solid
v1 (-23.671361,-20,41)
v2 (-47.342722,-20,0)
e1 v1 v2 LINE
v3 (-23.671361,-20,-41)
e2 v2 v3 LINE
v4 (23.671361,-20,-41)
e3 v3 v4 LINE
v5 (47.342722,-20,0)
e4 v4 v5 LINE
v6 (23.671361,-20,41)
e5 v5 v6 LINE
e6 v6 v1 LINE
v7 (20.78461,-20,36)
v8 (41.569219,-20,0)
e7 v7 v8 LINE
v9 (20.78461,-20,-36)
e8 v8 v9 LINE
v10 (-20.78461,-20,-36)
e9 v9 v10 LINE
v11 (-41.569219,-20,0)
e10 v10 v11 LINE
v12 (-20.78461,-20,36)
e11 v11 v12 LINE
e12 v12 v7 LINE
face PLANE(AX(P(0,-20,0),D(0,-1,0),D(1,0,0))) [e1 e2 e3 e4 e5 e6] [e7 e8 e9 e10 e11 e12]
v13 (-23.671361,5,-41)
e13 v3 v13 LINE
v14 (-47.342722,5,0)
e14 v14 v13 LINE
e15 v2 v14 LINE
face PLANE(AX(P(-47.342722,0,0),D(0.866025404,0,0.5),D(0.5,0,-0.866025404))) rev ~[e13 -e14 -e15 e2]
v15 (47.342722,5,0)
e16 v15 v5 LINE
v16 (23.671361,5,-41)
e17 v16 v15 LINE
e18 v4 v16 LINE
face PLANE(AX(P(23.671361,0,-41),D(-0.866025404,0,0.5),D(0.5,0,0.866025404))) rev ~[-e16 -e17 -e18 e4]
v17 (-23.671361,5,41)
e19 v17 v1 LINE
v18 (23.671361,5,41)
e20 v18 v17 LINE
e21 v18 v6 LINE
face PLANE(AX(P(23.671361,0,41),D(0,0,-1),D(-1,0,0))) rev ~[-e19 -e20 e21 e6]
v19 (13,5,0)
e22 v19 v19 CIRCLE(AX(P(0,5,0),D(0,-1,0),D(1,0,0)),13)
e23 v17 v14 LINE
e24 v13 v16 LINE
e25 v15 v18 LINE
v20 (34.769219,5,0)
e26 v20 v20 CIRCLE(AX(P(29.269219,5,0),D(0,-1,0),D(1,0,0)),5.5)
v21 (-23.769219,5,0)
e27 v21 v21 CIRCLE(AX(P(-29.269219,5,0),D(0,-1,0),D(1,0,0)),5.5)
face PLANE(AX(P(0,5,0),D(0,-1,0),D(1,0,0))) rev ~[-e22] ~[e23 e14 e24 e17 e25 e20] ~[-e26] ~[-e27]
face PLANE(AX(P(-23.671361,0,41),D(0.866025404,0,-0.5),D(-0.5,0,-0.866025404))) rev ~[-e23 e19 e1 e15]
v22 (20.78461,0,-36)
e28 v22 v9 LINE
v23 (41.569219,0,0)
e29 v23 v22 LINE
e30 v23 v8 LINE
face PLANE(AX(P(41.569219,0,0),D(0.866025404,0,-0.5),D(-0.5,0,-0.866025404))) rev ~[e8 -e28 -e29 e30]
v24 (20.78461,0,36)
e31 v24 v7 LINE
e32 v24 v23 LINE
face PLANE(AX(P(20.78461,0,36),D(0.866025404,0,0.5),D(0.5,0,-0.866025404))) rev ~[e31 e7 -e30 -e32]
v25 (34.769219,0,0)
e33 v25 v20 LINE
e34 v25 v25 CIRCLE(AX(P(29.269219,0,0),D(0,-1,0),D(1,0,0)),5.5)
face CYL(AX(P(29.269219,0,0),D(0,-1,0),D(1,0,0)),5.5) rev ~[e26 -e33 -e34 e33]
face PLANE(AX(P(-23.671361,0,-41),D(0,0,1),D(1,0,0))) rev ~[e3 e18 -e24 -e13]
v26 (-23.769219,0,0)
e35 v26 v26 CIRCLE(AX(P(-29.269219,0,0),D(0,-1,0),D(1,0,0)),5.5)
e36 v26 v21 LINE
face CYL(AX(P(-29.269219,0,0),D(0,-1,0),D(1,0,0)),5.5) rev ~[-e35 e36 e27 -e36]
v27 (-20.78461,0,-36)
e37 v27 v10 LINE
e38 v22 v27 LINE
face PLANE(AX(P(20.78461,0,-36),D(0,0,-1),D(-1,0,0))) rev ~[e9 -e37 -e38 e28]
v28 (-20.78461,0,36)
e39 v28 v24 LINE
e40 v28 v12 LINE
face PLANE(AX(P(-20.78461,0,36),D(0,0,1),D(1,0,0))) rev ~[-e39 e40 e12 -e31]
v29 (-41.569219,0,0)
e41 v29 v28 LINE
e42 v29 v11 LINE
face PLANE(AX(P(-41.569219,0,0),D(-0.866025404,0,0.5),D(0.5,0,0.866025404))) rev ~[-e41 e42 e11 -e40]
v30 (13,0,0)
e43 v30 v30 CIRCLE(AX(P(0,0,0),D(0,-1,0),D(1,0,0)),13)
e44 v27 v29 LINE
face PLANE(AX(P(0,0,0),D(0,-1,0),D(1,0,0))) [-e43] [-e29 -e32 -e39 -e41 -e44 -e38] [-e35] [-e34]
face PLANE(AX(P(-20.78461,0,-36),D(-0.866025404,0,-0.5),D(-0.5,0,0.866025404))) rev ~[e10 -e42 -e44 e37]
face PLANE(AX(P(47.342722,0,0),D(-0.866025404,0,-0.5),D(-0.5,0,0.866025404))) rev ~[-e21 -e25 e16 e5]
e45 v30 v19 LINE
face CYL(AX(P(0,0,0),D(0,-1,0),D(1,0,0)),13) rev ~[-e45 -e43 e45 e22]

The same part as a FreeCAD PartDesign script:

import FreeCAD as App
import Part
import Sketcher
from FreeCAD import Vector
Q = App.Units.Quantity


def add_polygon(sketch, points):
    """Adds a closed chain of lines whose ends are joined by coincident constraints."""
    first, n = sketch.GeometryCount, len(points)
    for a, b in zip(points, points[1:] + points[:1]):
        sketch.addGeometry(Part.LineSegment(App.Vector(*a, 0), App.Vector(*b, 0)), False)
    for i in range(n):
        sketch.addConstraint(Sketcher.Constraint("Coincident", first + i, 2, first + (i + 1) % n, 1))

doc = App.newDocument("Part")
body = doc.addObject("PartDesign::Body", "Body")

sketch1 = body.newObject("Sketcher::SketchObject", "Sketch")
sketch1.AttachmentSupport = (doc.getObject("XZ_Plane"), [""])
sketch1.MapMode = "FlatFace"
add_polygon(sketch1, [(24, -41), (47, 0), (24, 41), (-24, 41), (-47, 0), (-24, -41)])
sketch1.addConstraint([
    Sketcher.Constraint("Horizontal", 2),
    Sketcher.Constraint("Horizontal", 5),
    Sketcher.Constraint("Symmetric", 0, 2, 3, 2, -1, 1),
    Sketcher.Constraint("Symmetric", 1, 2, 4, 2, -1, 1),
    Sketcher.Constraint("PointOnObject", 0, 2, -1),
    Sketcher.Constraint("Parallel", 0, 3),
    Sketcher.Constraint("Vertical", 2, 2, 4, 2),
    Sketcher.Constraint("Angle", 0, Q("60 deg")),
    Sketcher.Constraint("DistanceY", -1, 1, 1, 2, Q("41 mm")),
    Sketcher.Constraint("DistanceX", 2, 2, 2, 1, Q("47.342722 mm")),
])
pad1 = body.newObject("PartDesign::Pad", "Pad")
pad1.Profile = sketch1
pad1.Length = 5
pad1.Reversed = True

sketch2 = body.newObject("Sketcher::SketchObject", "Sketch001")
sketch2.AttachmentSupport = (doc.getObject("XZ_Plane"), [""])
sketch2.MapMode = "FlatFace"
add_polygon(sketch2, [(24, -41), (47, 0), (24, 41), (-24, 41), (-47, 0), (-24, -41)])
add_polygon(sketch2, [(-21, 36), (21, 36), (42, 0), (21, -36), (-21, -36), (-42, 0)])
sketch2.addConstraint([
    Sketcher.Constraint("Horizontal", 2),
    Sketcher.Constraint("Horizontal", 5),
    Sketcher.Constraint("Horizontal", 6),
    Sketcher.Constraint("Horizontal", 9),
    Sketcher.Constraint("Symmetric", 0, 2, 3, 2, -1, 1),
    Sketcher.Constraint("Symmetric", 1, 2, 4, 2, -1, 1),
    Sketcher.Constraint("Symmetric", 6, 2, 9, 2, -1, 1),
    Sketcher.Constraint("Symmetric", 7, 2, 10, 2, -1, 1),
    Sketcher.Constraint("PointOnObject", 0, 2, -1),
    Sketcher.Constraint("PointOnObject", 7, 2, -1),
    Sketcher.Constraint("Parallel", 0, 3),
    Sketcher.Constraint("Parallel", 4, 7),
    Sketcher.Constraint("Parallel", 3, 8),
    Sketcher.Constraint("Parallel", 8, 11),
    Sketcher.Constraint("Vertical", 2, 2, 4, 2),
    Sketcher.Constraint("Angle", 0, Q("60 deg")),
    Sketcher.Constraint("DistanceY", -1, 1, 1, 2, Q("41 mm")),
    Sketcher.Constraint("DistanceY", -1, 1, 6, 2, Q("36 mm")),
    Sketcher.Constraint("DistanceX", 6, 1, 6, 2, Q("41.569219 mm")),
    Sketcher.Constraint("DistanceX", 2, 2, 2, 1, Q("47.342722 mm")),
])
pad2 = body.newObject("PartDesign::Pad", "Pad001")
pad2.Profile = sketch2
pad2.Length = 20

sketch3 = body.newObject("Sketcher::SketchObject", "Sketch002")
sketch3.AttachmentSupport = (doc.getObject("XZ_Plane"), [""])
sketch3.MapMode = "FlatFace"
sketch3.addGeometry(Part.Circle(Vector(0, 0, 0), Vector(0, 0, 1), 13), False)
sketch3.addConstraint([
    Sketcher.Constraint("Coincident", 0, 3, -1, 1),
    Sketcher.Constraint("Diameter", 0, Q("26 mm")),
])
pocket1 = body.newObject("PartDesign::Pocket", "Pocket")
pocket1.Profile = sketch3
pocket1.Length = 25

sketch4 = body.newObject("Sketcher::SketchObject", "Sketch003")
sketch4.AttachmentSupport = (doc.getObject("XZ_Plane"), [""])
sketch4.MapMode = "FlatFace"
sketch4.addGeometry([
    Part.Circle(Vector(29, 0, 0), Vector(0, 0, 1), 6),
    Part.Circle(Vector(-29, 0, 0), Vector(0, 0, 1), 6),
], False)
sketch4.addConstraint([
    Sketcher.Constraint("Equal", 0, 1),
    Sketcher.Constraint("Symmetric", 0, 3, 1, 3, -1, 1),
    Sketcher.Constraint("PointOnObject", 0, 3, -1),
    Sketcher.Constraint("Diameter", 0, Q("11 mm")),
    Sketcher.Constraint("DistanceX", -1, 1, 0, 3, Q("29.269219 mm")),
])
pocket2 = body.newObject("PartDesign::Pocket", "Pocket001")
pocket2.Profile = sketch4
pocket2.Length = 25

doc.recompute()
